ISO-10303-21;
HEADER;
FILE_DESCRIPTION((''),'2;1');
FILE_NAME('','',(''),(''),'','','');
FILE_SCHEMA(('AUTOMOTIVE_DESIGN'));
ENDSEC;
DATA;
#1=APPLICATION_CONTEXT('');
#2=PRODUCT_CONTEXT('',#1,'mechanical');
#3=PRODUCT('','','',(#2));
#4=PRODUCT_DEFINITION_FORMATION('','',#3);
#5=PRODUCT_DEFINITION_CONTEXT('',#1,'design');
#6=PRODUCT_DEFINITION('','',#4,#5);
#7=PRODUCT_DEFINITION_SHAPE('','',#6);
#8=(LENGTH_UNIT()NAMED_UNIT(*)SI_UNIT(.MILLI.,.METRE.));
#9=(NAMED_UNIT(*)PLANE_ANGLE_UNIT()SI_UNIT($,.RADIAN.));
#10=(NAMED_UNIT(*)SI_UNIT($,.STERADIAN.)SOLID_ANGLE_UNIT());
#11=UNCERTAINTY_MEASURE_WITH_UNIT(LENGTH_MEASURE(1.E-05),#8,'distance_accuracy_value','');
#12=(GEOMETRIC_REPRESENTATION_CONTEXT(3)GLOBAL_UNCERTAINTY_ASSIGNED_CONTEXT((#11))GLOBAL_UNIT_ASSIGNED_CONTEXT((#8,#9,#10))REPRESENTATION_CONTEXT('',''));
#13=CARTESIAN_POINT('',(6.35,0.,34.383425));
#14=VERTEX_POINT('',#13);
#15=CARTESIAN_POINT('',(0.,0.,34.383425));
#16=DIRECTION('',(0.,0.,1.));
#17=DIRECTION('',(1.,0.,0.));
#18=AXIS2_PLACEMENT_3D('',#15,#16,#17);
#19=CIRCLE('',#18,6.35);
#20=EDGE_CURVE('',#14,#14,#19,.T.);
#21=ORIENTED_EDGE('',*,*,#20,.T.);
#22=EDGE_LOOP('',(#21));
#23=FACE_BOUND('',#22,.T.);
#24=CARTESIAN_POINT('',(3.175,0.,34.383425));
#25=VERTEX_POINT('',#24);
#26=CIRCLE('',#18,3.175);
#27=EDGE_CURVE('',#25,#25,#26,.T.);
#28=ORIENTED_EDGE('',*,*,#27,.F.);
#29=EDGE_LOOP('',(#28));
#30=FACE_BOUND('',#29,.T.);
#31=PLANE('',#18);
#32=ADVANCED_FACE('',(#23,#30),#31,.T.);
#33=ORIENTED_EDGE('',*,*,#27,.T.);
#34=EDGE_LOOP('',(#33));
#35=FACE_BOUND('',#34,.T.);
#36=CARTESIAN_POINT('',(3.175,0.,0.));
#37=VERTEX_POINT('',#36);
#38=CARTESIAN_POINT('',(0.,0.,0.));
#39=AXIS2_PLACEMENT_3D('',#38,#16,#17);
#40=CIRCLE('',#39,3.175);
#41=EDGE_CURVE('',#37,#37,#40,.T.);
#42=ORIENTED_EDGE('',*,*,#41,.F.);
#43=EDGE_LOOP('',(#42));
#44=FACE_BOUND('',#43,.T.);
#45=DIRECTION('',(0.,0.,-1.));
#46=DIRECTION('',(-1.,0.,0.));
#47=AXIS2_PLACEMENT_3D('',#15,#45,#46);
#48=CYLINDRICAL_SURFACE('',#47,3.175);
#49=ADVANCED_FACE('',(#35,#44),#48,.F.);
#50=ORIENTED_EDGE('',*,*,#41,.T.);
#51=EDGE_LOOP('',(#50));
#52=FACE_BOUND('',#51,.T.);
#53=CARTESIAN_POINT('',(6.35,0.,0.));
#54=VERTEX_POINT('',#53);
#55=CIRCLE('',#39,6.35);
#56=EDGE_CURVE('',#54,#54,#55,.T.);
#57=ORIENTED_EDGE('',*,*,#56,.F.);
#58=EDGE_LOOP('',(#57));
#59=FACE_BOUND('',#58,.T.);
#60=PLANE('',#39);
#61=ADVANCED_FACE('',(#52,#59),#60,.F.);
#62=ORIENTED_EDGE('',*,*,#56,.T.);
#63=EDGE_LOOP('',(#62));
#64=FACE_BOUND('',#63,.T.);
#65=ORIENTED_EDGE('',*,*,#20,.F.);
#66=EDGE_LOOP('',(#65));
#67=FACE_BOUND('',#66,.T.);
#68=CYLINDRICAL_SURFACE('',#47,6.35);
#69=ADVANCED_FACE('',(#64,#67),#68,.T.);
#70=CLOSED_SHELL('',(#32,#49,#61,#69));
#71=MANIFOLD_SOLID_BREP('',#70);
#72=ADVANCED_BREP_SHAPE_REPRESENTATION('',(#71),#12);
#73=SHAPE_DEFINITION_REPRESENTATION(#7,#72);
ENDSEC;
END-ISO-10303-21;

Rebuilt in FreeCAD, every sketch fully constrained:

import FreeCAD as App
import Part
import Sketcher
Q = App.Units.Quantity

doc = App.newDocument("Part")
body = doc.addObject("PartDesign::Body", "Body")

sketch1 = doc.addObject("Sketcher::SketchObject", "Sketch")
body.addObject(sketch1)
sketch1.AttachmentSupport = (doc.XY_Plane, [""])
sketch1.MapMode = "FlatFace"
sketch1.addGeometry([
    Part.Circle(App.Vector(0, 0, 0), App.Vector(0, 0, 1), 6.3),
    Part.Circle(App.Vector(0, 0, 0), App.Vector(0, 0, 1), 3.2),
], False)
sketch1.addConstraint([
    Sketcher.Constraint("Coincident", 0, 3, -1, 1),
    Sketcher.Constraint("Coincident", 1, 3, -1, 1),
    Sketcher.Constraint("Diameter", 0, Q("0.5 in")),
    Sketcher.Constraint("Diameter", 1, Q("0.25 in")),
])
pad1 = doc.addObject("PartDesign::Pad", "Pad")
body.addObject(pad1)
pad1.Profile = sketch1
pad1.Length = 34.383425

doc.recompute()
